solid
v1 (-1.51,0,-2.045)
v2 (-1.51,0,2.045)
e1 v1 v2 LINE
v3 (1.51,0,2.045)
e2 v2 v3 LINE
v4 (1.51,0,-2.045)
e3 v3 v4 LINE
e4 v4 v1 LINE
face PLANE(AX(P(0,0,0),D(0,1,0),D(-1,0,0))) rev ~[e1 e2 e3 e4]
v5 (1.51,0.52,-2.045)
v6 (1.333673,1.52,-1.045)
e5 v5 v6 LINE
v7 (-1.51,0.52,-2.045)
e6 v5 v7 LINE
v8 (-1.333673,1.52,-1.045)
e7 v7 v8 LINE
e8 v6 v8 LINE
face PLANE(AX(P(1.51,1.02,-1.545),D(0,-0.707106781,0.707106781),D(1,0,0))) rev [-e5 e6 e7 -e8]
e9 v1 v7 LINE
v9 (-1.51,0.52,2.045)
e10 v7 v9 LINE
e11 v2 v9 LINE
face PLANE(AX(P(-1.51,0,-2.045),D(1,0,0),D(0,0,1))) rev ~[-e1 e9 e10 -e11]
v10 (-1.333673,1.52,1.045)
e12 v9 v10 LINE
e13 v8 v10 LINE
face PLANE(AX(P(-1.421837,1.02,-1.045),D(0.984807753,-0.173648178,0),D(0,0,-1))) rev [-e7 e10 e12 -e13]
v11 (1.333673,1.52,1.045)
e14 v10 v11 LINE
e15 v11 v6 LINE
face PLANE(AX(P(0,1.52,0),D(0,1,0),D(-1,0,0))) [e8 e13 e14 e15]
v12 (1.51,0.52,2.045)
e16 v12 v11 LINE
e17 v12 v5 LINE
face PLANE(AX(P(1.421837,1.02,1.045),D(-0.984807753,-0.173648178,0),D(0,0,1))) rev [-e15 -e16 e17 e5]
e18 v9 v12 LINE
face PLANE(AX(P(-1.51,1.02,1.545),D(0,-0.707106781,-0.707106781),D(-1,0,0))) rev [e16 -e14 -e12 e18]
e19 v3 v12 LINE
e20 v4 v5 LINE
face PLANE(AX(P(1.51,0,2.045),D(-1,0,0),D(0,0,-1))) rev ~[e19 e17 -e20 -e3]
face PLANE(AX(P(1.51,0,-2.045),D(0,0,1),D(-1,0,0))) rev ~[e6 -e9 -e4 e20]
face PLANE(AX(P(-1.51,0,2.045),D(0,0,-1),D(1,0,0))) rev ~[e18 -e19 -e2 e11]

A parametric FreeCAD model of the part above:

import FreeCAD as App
import Part
import Sketcher

V = App.Vector


def edges_at(feature, points):
    """Names of the edges that pass closest to the given points."""
    edges = feature.Shape.Edges
    near = lambda p: min(range(len(edges)), key=lambda i: edges[i].distToShape(Part.Vertex(*p))[0])
    return sorted({f"Edge{near(p) + 1}" for p in points})

doc = App.newDocument("Part")
params = doc.addObject("Spreadsheet::Sheet", "Params")
for row, (alias, value) in enumerate([
    ("pad1_length", "1.52 mm"),
    ("chamfer_size", "1 mm"),
    ("chamfer2_size", "1 mm"),
    ("chamfer3_size", "1 mm"),
], start=1):
    params.set(f"A{row}", alias)
    params.set(f"B{row}", "=" + value)
    params.setAlias(f"B{row}", alias)

body = doc.addObject("PartDesign::Body", "Body")

sketch1 = doc.addObject("Sketcher::SketchObject", "Sketch")
body.addObject(sketch1)
sketch1.AttachmentSupport = (doc.XZ_Plane, [""])
sketch1.MapMode = "FlatFace"
sketch1.addGeometry([
    Part.LineSegment(V(-1.5, -2, 0), V(-1.5, 2, 0)),
    Part.LineSegment(V(-1.5, 2, 0), V(1.5, 2, 0)),
    Part.LineSegment(V(1.5, 2, 0), V(1.5, -2, 0)),
    Part.LineSegment(V(1.5, -2, 0), V(-1.5, -2, 0)),
], False)
sketch1.addConstraint([
    Sketcher.Constraint("Coincident", 0, 2, 1, 1),
    Sketcher.Constraint("Coincident", 1, 2, 2, 1),
    Sketcher.Constraint("Coincident", 2, 2, 3, 1),
    Sketcher.Constraint("Coincident", 3, 2, 0, 1),
    Sketcher.Constraint("Vertical", 0),
    Sketcher.Constraint("Horizontal", 1),
    Sketcher.Constraint("Vertical", 2),
    Sketcher.Constraint("Horizontal", 3),
    Sketcher.Constraint("Symmetric", 0, 2, 2, 2, -1, 1),
    Sketcher.Constraint("DistanceX", 0, 2, -1, 1, 1.51),
    Sketcher.Constraint("DistanceY", -1, 1, 0, 2, 2.045),
])
pad1 = doc.addObject("PartDesign::Pad", "Pad")
body.addObject(pad1)
pad1.Profile = sketch1
pad1.setExpression("Length", "Params.pad1_length")
pad1.Reversed = True
doc.recompute()

chamfer = doc.addObject("PartDesign::Chamfer", "Chamfer")
body.addObject(chamfer)
chamfer.Base = (pad1, edges_at(pad1, [(0, 1.52, 2.045), (0, 1.52, -2.045)]))
chamfer.setExpression("Size", "Params.chamfer_size")
doc.recompute()

chamfer2 = doc.addObject("PartDesign::Chamfer", "Chamfer001")
body.addObject(chamfer2)
chamfer2.Base = (chamfer, edges_at(chamfer, [(-1.51, 1.52, 0)]))
chamfer2.ChamferType = "Distance and Angle"
chamfer2.setExpression("Size", "Params.chamfer2_size")
chamfer2.Angle = 10
doc.recompute()

chamfer3 = doc.addObject("PartDesign::Chamfer", "Chamfer002")
body.addObject(chamfer3)
chamfer3.Base = (chamfer2, edges_at(chamfer2, [(1.51, 1.52, 0)]))
chamfer3.ChamferType = "Distance and Angle"
chamfer3.setExpression("Size", "Params.chamfer3_size")
chamfer3.Angle = 10
chamfer3.FlipDirection = True

doc.recompute()
